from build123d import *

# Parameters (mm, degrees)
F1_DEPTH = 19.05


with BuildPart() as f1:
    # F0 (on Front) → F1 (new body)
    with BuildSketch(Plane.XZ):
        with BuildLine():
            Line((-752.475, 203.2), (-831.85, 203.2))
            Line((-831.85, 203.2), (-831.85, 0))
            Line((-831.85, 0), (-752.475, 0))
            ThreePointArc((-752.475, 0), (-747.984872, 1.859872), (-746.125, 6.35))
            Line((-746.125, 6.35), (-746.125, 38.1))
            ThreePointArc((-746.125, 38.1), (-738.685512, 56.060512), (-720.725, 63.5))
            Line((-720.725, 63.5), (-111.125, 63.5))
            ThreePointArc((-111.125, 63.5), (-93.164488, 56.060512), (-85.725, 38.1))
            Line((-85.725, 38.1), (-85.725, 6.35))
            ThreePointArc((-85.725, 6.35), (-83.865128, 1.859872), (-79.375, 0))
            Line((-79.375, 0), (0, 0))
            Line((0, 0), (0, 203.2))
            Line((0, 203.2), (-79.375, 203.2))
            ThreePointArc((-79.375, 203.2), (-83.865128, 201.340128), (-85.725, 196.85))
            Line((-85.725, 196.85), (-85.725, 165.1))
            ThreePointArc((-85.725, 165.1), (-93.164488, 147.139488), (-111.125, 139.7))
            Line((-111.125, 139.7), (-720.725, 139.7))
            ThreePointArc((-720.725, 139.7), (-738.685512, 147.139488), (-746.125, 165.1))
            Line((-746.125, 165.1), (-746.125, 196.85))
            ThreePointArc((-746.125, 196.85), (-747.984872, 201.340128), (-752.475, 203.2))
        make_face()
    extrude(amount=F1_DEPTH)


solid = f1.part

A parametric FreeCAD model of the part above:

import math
import FreeCAD as App
import Part
import Sketcher
from FreeCAD import Vector
Q = App.Units.Quantity

doc = App.newDocument("Part")
body = doc.addObject("PartDesign::Body", "Body")

# Sketch on XZ plane
sketch1 = body.newObject("Sketcher::SketchObject", "Sketch")
sketch1.AttachmentSupport = (doc.getObject("XZ_Plane"), [""])
sketch1.MapMode = "FlatFace"
sketch1.addGeometry([
    Part.LineSegment(Vector(-752.475, 203.2, 0), Vector(-831.85, 203.2, 0)),  # 0
    Part.LineSegment(Vector(-831.85, 203.2, 0), Vector(-831.85, 0, 0)),  # 1
    Part.LineSegment(Vector(-831.85, 0, 0), Vector(-752.475, 0, 0)),  # 2
    Part.ArcOfCircle(Part.Circle(Vector(-752.475, 6.35, 0), Vector(0, 0, 1), 6.35), math.radians(-89.999998), math.radians(-0.000002)),  # 3
    Part.LineSegment(Vector(-746.125, 6.35, 0), Vector(-746.125, 38.1, 0)),  # 4
    Part.ArcOfCircle(Part.Circle(Vector(-720.724999, 38.099999, 0), Vector(0, 0, 1), 25.400001), math.radians(90.000002), math.radians(179.999998)),  # 5
    Part.LineSegment(Vector(-720.725, 63.5, 0), Vector(-111.125, 63.5, 0)),  # 6
    Part.ArcOfCircle(Part.Circle(Vector(-111.125001, 38.099999, 0), Vector(0, 0, 1), 25.400001), math.radians(0.000002), math.radians(89.999998)),  # 7
    Part.LineSegment(Vector(-85.725, 38.1, 0), Vector(-85.725, 6.35, 0)),  # 8
    Part.ArcOfCircle(Part.Circle(Vector(-79.375, 6.35, 0), Vector(0, 0, 1), 6.35), math.radians(-179.999998), math.radians(-90.000002)),  # 9
    Part.LineSegment(Vector(-79.375, 0, 0), Vector(0, 0, 0)),  # 10
    Part.LineSegment(Vector(0, 0, 0), Vector(0, 203.2, 0)),  # 11
    Part.LineSegment(Vector(0, 203.2, 0), Vector(-79.375, 203.2, 0)),  # 12
    Part.ArcOfCircle(Part.Circle(Vector(-79.375, 196.85, 0), Vector(0, 0, 1), 6.35), math.radians(90.000002), math.radians(179.999998)),  # 13
    Part.LineSegment(Vector(-85.725, 196.85, 0), Vector(-85.725, 165.1, 0)),  # 14
    Part.ArcOfCircle(Part.Circle(Vector(-111.125001, 165.100001, 0), Vector(0, 0, 1), 25.400001), math.radians(-89.999998), math.radians(-0.000002)),  # 15
    Part.LineSegment(Vector(-111.125, 139.7, 0), Vector(-720.725, 139.7, 0)),  # 16
    Part.ArcOfCircle(Part.Circle(Vector(-720.724999, 165.100001, 0), Vector(0, 0, 1), 25.400001), math.radians(-179.999998), math.radians(-90.000002)),  # 17
    Part.LineSegment(Vector(-746.125, 165.1, 0), Vector(-746.125, 196.85, 0)),  # 18
    Part.ArcOfCircle(Part.Circle(Vector(-752.475, 196.85, 0), Vector(0, 0, 1), 6.35), math.radians(0.000002), math.radians(89.999998)),  # 19
], False)
sketch1.addConstraint([
    Sketcher.Constraint("Coincident", 0, 2, 1, 1),
    Sketcher.Constraint("Coincident", 1, 2, 2, 1),
    Sketcher.Constraint("Tangent", 2, 2, 3, 1),
    Sketcher.Constraint("Tangent", 3, 2, 4, 1),
    Sketcher.Constraint("Tangent", 4, 2, 5, 2),
    Sketcher.Constraint("Tangent", 5, 1, 6, 1),
    Sketcher.Constraint("Tangent", 6, 2, 7, 2),
    Sketcher.Constraint("Tangent", 7, 1, 8, 1),
    Sketcher.Constraint("Tangent", 8, 2, 9, 1),
    Sketcher.Constraint("Tangent", 9, 2, 10, 1),
    Sketcher.Constraint("Coincident", 10, 2, 11, 1),
    Sketcher.Constraint("Coincident", 11, 2, 12, 1),
    Sketcher.Constraint("Tangent", 12, 2, 13, 1),
    Sketcher.Constraint("Tangent", 13, 2, 14, 1),
    Sketcher.Constraint("Tangent", 14, 2, 15, 2),
    Sketcher.Constraint("Tangent", 15, 1, 16, 1),
    Sketcher.Constraint("Tangent", 16, 2, 17, 2),
    Sketcher.Constraint("Tangent", 17, 1, 18, 1),
    Sketcher.Constraint("Tangent", 18, 2, 19, 1),
    Sketcher.Constraint("Tangent", 19, 2, 0, 1),
    Sketcher.Constraint("Horizontal", 0),
    Sketcher.Constraint("Vertical", 1),
    Sketcher.Constraint("Horizontal", 2),
    Sketcher.Constraint("Vertical", 4),
    Sketcher.Constraint("Horizontal", 6),
    Sketcher.Constraint("Vertical", 8),
    Sketcher.Constraint("Horizontal", 10),
    Sketcher.Constraint("Vertical", 11),
    Sketcher.Constraint("Horizontal", 12),
    Sketcher.Constraint("Vertical", 14),
    Sketcher.Constraint("Horizontal", 16),
    Sketcher.Constraint("Vertical", 18),
    Sketcher.Constraint("Coincident", 10, 2, -1, 1),
    Sketcher.Constraint("Equal", 5, 7),
    Sketcher.Constraint("Equal", 3, 9),
    Sketcher.Constraint("Equal", 9, 13),
    Sketcher.Constraint("Equal", 7, 15),
    Sketcher.Constraint("Equal", 15, 17),
    Sketcher.Constraint("Equal", 13, 19),
    Sketcher.Constraint("PointOnObject", 1, 2, -1),
    Sketcher.Constraint("Horizontal", 13, 3, 19, 3),
    Sketcher.Constraint("Vertical", 9, 3, 13, 3),
    Sketcher.Constraint("Vertical", 5, 3, 17, 3),
    Sketcher.Constraint("Equal", 2, 10),
    Sketcher.Constraint("Equal", 8, 14),
    Sketcher.Constraint("Radius", 5, Q("1 in")),
    Sketcher.Constraint("DistanceX", 6, 1, 6, 2, Q("24 in")),
    Sketcher.Constraint("DistanceY", 1, 2, 1, 1, Q("8 in")),
    Sketcher.Constraint("Radius", 3, Q("0.25 in")),
    Sketcher.Constraint("DistanceY", 7, 3, 15, 3, Q("5.0000001 in")),
    Sketcher.Constraint("DistanceX", 0, 2, 0, 1, Q("3.125 in")),
])
pad1 = body.newObject("PartDesign::Pad", "Pad")
pad1.Profile = sketch1
pad1.Length = Q("0.75 in")

doc.recompute()
